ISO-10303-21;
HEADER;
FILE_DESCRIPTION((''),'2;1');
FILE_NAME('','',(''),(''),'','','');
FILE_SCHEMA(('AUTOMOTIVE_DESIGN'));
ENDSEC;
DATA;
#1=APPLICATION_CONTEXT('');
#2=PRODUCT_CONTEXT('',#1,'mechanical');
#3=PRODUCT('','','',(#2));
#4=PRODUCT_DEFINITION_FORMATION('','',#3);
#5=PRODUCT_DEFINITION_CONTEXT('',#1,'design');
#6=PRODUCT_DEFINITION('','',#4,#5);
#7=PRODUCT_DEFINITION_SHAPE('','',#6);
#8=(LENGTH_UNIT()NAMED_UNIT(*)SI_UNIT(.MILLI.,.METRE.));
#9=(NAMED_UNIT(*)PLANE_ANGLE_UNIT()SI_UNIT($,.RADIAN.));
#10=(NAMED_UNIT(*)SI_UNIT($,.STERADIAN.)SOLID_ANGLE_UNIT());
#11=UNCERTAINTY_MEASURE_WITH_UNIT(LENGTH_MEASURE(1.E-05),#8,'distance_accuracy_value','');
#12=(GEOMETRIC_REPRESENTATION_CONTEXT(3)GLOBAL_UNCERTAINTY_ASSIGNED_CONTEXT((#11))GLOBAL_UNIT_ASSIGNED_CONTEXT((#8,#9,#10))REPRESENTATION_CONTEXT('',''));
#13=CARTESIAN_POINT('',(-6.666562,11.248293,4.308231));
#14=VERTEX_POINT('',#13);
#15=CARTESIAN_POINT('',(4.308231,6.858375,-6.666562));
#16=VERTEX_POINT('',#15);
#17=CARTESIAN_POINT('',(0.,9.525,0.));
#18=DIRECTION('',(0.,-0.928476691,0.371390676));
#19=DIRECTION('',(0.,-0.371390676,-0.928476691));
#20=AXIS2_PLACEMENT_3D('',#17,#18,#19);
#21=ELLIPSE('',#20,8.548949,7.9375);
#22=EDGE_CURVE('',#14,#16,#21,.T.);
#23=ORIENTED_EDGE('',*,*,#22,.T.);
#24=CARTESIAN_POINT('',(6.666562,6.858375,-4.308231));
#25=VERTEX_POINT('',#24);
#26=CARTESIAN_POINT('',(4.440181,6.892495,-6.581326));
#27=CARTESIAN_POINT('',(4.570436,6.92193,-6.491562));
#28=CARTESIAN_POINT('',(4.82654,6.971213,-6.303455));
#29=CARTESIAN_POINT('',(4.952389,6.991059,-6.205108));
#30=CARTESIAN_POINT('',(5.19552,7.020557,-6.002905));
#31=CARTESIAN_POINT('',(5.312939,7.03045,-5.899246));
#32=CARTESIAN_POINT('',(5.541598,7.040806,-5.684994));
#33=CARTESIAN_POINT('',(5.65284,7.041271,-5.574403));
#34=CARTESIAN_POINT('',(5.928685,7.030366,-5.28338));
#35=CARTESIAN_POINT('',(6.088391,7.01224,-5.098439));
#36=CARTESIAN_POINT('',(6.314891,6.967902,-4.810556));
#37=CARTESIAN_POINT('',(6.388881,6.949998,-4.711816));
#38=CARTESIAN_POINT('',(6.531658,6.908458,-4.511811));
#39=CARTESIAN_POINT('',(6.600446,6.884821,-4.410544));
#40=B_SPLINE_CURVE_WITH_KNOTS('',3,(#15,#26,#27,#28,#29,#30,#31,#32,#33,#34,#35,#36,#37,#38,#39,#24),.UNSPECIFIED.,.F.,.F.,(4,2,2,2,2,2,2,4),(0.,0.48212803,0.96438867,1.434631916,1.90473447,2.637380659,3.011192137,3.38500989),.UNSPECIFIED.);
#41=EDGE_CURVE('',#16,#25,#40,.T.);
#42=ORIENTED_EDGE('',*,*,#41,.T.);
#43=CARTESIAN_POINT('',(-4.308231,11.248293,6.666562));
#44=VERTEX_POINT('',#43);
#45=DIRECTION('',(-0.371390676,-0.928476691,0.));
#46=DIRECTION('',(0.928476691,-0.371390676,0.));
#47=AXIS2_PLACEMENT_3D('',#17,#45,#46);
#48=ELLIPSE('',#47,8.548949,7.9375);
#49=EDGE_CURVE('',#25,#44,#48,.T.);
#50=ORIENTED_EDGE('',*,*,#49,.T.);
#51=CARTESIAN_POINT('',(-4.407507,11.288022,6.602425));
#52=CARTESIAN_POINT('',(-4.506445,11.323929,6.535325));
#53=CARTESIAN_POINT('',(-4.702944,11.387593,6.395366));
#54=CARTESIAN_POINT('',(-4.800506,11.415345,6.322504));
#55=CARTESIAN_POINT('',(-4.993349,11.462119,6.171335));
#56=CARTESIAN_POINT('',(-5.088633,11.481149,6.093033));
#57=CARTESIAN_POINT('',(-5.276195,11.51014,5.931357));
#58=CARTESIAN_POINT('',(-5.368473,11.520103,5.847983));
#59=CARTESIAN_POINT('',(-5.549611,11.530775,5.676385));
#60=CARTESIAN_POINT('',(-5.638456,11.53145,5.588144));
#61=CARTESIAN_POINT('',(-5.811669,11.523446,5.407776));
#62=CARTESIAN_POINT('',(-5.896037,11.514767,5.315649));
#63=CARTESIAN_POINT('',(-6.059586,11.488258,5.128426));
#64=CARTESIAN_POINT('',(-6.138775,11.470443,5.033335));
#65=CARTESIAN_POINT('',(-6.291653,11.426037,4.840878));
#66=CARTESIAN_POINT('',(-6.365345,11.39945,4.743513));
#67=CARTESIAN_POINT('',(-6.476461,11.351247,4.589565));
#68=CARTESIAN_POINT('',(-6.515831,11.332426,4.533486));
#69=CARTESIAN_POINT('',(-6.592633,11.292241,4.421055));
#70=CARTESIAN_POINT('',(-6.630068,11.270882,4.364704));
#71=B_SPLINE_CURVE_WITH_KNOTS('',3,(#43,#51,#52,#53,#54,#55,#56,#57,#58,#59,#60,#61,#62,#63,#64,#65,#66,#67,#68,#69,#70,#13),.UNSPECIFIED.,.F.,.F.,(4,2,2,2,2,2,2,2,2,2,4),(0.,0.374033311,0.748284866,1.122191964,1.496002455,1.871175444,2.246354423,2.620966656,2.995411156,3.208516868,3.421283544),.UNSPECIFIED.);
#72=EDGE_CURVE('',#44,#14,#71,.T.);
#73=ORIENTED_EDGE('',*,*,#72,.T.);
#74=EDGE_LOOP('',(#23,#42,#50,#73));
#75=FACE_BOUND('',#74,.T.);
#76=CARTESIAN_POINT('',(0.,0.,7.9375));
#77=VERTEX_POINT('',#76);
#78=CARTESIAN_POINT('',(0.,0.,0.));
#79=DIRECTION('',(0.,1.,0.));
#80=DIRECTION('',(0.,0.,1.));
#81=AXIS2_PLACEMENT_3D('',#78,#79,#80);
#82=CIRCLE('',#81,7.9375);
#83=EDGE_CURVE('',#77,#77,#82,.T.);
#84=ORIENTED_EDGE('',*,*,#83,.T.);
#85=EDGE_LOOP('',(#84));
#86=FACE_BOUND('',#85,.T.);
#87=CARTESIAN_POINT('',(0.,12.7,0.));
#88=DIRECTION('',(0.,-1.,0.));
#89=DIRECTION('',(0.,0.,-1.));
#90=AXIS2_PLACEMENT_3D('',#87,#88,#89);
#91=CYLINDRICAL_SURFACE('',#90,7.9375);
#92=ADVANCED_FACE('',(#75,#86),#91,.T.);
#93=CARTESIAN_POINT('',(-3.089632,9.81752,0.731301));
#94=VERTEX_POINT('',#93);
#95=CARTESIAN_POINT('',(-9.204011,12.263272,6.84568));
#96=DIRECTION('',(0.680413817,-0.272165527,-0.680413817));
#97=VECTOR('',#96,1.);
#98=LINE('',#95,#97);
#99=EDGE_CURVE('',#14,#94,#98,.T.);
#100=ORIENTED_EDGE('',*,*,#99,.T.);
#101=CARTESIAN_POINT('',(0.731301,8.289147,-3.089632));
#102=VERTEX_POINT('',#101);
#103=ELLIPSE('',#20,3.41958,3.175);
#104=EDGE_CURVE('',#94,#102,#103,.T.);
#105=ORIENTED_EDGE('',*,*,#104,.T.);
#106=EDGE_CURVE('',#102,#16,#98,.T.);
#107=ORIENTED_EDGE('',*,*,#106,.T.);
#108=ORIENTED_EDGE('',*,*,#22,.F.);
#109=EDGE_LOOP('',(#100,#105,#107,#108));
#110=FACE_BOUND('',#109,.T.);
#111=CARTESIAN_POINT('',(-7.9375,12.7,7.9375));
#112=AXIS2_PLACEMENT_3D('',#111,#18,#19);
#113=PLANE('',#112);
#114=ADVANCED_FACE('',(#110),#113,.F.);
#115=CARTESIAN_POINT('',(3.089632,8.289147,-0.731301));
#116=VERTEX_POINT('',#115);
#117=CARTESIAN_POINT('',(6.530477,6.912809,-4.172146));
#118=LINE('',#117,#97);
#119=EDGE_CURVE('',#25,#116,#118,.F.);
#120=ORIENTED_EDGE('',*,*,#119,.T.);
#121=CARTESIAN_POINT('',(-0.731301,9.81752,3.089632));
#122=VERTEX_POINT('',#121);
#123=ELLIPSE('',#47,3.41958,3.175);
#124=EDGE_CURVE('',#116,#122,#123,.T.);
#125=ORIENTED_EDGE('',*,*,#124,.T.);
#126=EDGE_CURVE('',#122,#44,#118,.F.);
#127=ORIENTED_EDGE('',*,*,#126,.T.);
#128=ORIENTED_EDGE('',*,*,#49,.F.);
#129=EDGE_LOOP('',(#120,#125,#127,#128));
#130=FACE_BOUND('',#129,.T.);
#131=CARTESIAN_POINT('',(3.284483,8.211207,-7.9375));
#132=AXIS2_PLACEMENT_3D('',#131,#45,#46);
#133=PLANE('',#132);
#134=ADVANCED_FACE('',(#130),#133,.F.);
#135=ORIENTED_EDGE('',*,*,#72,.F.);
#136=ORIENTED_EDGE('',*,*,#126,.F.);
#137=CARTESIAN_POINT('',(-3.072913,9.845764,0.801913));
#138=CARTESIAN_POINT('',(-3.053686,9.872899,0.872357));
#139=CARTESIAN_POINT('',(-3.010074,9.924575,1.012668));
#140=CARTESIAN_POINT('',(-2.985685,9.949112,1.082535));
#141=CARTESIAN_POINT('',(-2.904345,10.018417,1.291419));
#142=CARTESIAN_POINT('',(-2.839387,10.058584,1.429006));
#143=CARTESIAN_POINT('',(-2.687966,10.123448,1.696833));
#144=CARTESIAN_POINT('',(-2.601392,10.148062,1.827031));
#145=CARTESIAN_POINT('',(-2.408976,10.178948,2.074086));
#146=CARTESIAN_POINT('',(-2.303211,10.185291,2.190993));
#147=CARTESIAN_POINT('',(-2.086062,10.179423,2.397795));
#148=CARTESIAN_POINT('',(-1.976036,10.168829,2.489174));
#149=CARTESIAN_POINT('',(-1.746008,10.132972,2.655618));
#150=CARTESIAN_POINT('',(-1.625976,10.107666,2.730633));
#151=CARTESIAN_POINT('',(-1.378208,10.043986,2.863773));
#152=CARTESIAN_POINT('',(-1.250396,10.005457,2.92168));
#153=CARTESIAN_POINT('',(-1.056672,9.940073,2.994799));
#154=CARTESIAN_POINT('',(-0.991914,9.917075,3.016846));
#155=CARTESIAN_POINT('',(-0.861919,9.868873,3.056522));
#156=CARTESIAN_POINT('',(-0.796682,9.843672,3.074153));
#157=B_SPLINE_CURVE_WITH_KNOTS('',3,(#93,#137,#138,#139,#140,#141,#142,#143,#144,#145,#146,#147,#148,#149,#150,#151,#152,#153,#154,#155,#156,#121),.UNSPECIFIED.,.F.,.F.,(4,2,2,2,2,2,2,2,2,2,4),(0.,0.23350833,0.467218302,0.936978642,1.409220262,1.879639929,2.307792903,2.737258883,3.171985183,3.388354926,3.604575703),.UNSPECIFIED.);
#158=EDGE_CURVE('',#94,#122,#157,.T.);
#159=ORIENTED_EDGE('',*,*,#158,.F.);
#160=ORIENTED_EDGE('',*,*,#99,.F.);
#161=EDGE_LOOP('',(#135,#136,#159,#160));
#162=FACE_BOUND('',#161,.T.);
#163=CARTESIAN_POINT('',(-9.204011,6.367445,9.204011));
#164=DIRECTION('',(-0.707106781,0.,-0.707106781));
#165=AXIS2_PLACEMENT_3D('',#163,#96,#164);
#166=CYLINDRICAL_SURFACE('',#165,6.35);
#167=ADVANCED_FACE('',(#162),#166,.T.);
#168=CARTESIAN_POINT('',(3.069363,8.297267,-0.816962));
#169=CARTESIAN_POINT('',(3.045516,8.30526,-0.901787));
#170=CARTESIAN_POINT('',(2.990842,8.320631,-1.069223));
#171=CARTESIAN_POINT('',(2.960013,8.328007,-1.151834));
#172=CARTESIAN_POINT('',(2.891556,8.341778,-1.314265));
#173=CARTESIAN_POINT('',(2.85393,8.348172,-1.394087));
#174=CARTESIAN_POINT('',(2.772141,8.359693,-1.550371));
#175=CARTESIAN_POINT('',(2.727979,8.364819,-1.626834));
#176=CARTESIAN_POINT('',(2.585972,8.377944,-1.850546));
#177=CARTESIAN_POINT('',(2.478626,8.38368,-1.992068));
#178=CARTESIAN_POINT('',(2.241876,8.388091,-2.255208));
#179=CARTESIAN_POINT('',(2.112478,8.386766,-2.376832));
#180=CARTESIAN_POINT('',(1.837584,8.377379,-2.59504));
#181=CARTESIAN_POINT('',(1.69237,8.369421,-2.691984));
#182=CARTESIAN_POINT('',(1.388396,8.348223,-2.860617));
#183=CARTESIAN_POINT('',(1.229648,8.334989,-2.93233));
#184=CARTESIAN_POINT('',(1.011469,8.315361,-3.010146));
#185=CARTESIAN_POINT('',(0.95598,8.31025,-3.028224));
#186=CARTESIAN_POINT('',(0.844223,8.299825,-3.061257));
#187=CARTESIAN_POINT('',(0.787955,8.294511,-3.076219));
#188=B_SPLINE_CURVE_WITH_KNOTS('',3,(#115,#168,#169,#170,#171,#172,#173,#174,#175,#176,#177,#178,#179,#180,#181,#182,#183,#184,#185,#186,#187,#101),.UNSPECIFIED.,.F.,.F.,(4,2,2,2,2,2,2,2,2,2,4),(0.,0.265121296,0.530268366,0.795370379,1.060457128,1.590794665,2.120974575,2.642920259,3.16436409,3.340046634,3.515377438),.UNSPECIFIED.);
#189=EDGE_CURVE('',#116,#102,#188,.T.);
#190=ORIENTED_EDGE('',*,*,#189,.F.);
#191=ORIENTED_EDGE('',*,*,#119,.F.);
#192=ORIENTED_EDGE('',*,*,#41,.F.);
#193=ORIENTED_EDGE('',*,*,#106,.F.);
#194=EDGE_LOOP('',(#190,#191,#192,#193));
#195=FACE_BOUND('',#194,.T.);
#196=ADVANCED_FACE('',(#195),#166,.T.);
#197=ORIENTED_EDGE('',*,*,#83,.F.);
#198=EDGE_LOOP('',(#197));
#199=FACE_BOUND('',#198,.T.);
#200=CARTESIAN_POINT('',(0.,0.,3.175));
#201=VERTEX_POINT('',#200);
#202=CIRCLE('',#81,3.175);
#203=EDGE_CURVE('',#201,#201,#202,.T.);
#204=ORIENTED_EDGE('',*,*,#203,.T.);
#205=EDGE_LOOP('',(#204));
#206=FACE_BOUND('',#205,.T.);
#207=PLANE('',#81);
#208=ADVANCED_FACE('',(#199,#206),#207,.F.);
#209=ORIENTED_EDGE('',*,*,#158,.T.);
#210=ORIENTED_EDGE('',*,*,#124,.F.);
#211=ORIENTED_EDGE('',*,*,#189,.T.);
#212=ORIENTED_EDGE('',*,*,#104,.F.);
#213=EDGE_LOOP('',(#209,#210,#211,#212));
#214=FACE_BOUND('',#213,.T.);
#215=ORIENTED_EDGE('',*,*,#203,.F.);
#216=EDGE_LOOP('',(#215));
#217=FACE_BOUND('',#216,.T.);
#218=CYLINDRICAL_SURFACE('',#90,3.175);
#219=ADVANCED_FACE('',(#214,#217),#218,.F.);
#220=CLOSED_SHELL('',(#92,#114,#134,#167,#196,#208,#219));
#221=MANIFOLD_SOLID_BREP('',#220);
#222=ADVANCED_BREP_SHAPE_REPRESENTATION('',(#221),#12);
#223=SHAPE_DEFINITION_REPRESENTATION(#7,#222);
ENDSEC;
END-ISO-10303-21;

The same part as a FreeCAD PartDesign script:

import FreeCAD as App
import Part
import Sketcher
from FreeCAD import Vector
Q = App.Units.Quantity


def edges_at(feature, points):
    """Names of the edges that pass closest to the given points."""
    edges = feature.Shape.Edges
    near = lambda p: min(range(len(edges)), key=lambda i: edges[i].distToShape(Part.Vertex(*p))[0])
    return sorted({f"Edge{near(p) + 1}" for p in points})

doc = App.newDocument("Part")
body = doc.addObject("PartDesign::Body", "Body")

sketch1 = body.newObject("Sketcher::SketchObject", "Sketch")
sketch1.AttachmentSupport = (doc.getObject("XZ_Plane"), [""])
sketch1.MapMode = "FlatFace"
sketch1.addGeometry(Part.Circle(Vector(0, 0, 0), Vector(0, 0, 1), 7.9), False)
sketch1.addGeometry(Part.Circle(Vector(0, 0, 0), Vector(0, 0, 1), 3.2), False)
sketch1.addConstraint(Sketcher.Constraint("Coincident", 0, 3, -1, 1))
sketch1.addConstraint(Sketcher.Constraint("Coincident", 1, 3, -1, 1))
sketch1.addConstraint(Sketcher.Constraint("Diameter", 1, Q("0.25 in")))
sketch1.addConstraint(Sketcher.Constraint("Diameter", 0, Q("0.625 in")))
pad1 = body.newObject("PartDesign::Pad", "Pad")
pad1.Profile = sketch1
pad1.Length = Q("0.5 in")
pad1.Reversed = True

sketch2 = body.newObject("Sketcher::SketchObject", "Sketch001")
sketch2.AttachmentSupport = (doc.getObject("YZ_Plane"), [""])
sketch2.MapMode = "FlatFace"
sketch2.addGeometry(Part.LineSegment(Vector(13, -8, 0), Vector(13, 8, 0)), False)
sketch2.addGeometry(Part.LineSegment(Vector(13, 8, 0), Vector(6, -8, 0)), False)
sketch2.addGeometry(Part.LineSegment(Vector(6, -8, 0), Vector(13, -8, 0)), False)
sketch2.addConstraint(Sketcher.Constraint("Coincident", 0, 2, 1, 1))
sketch2.addConstraint(Sketcher.Constraint("Coincident", 1, 2, 2, 1))
sketch2.addConstraint(Sketcher.Constraint("Coincident", 2, 2, 0, 1))
sketch2.addConstraint(Sketcher.Constraint("Vertical", 0))
sketch2.addConstraint(Sketcher.Constraint("Horizontal", 2))
sketch2.addConstraint(Sketcher.Constraint("DistanceX", 2, 1, 2, 2, Q("0.25 in")))
sketch2.addConstraint(Sketcher.Constraint("DistanceX", -1, 1, 0, 2, Q("0.5 in")))
sketch2.addConstraint(Sketcher.Constraint("DistanceY", 0, 1, 0, 2, Q("0.625 in")))
sketch2.addConstraint(Sketcher.Constraint("DistanceY", -1, 1, 0, 2, Q("0.3125 in")))
pocket1 = body.newObject("PartDesign::Pocket", "Pocket")
pocket1.Profile = sketch2
pocket1.Type = "ThroughAll"
pocket1.Midplane = True

sketch3 = body.newObject("Sketcher::SketchObject", "Sketch002")
sketch3.AttachmentSupport = (doc.getObject("XY_Plane"), [""])
sketch3.MapMode = "FlatFace"
sketch3.addGeometry(Part.LineSegment(Vector(8, 13, 0), Vector(-8, 13, 0)), False)
sketch3.addGeometry(Part.LineSegment(Vector(-8, 13, 0), Vector(8, 6, 0)), False)
sketch3.addGeometry(Part.LineSegment(Vector(8, 6, 0), Vector(8, 13, 0)), False)
sketch3.addConstraint(Sketcher.Constraint("Coincident", 0, 2, 1, 1))
sketch3.addConstraint(Sketcher.Constraint("Coincident", 1, 2, 2, 1))
sketch3.addConstraint(Sketcher.Constraint("Coincident", 2, 2, 0, 1))
sketch3.addConstraint(Sketcher.Constraint("Horizontal", 0))
sketch3.addConstraint(Sketcher.Constraint("Vertical", 2))
sketch3.addConstraint(Sketcher.Constraint("DistanceY", 2, 1, 2, 2, Q("0.25 in")))
sketch3.addConstraint(Sketcher.Constraint("DistanceY", -1, 1, 0, 2, Q("0.5 in")))
sketch3.addConstraint(Sketcher.Constraint("DistanceX", 0, 2, 0, 1, Q("0.625 in")))
sketch3.addConstraint(Sketcher.Constraint("DistanceX", 0, 2, -1, 1, Q("0.3125 in")))
pocket2 = body.newObject("PartDesign::Pocket", "Pocket001")
pocket2.Profile = sketch3
pocket2.Type = "ThroughAll"
pocket2.Midplane = True
doc.recompute()

fillet = body.newObject("PartDesign::Fillet", "Fillet")
fillet.Base = (pocket2, edges_at(pocket2, [(-3.929, 11.097, 3.929), (3.929, 7.953, -3.929)]))
fillet.Radius = Q("0.25 in")

doc.recompute()
